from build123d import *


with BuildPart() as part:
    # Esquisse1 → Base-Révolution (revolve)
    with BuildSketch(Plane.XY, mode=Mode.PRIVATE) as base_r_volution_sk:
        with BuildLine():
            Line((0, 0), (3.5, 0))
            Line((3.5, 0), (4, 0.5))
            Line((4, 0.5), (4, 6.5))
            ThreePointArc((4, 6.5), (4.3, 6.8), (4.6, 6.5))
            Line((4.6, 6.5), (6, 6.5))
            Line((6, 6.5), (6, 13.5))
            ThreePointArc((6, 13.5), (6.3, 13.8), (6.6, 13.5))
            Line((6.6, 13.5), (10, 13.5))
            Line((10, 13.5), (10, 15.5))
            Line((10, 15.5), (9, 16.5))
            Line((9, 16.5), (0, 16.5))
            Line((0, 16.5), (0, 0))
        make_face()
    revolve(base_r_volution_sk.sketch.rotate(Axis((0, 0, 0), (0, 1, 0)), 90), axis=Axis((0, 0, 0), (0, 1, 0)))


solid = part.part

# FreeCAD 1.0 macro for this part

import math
import FreeCAD as App
import Part
import Sketcher
from FreeCAD import Vector
Q = App.Units.Quantity

doc = App.newDocument("Part")
body = doc.addObject("PartDesign::Body", "Body")

# Sketch on XY plane
sketch1 = body.newObject("Sketcher::SketchObject", "Sketch")
sketch1.AttachmentSupport = (doc.getObject("XY_Plane"), [""])
sketch1.MapMode = "FlatFace"
sketch1.addGeometry([
    Part.LineSegment(Vector(0, 0, 0), Vector(3.5, 0, 0)),  # 0
    Part.LineSegment(Vector(3.5, 0, 0), Vector(4, 0.5, 0)),  # 1
    Part.LineSegment(Vector(4, 0.5, 0), Vector(4, 6.5, 0)),  # 2
    Part.ArcOfCircle(Part.Circle(Vector(4.3, 6.5, 0), Vector(0, 0, 1), 0.3), math.radians(0), math.radians(180)),  # 3
    Part.LineSegment(Vector(4.6, 6.5, 0), Vector(6, 6.5, 0)),  # 4
    Part.LineSegment(Vector(6, 6.5, 0), Vector(6, 13.5, 0)),  # 5
    Part.ArcOfCircle(Part.Circle(Vector(6.3, 13.5, 0), Vector(0, 0, 1), 0.3), math.radians(0), math.radians(180)),  # 6
    Part.LineSegment(Vector(6.6, 13.5, 0), Vector(10, 13.5, 0)),  # 7
    Part.LineSegment(Vector(10, 13.5, 0), Vector(10, 15.5, 0)),  # 8
    Part.LineSegment(Vector(10, 15.5, 0), Vector(9, 16.5, 0)),  # 9
    Part.LineSegment(Vector(9, 16.5, 0), Vector(0, 16.5, 0)),  # 10
    Part.LineSegment(Vector(0, 16.5, 0), Vector(0, 0, 0)),  # 11
], False)
sketch1.addConstraint([
    Sketcher.Constraint("Coincident", 0, 2, 1, 1),
    Sketcher.Constraint("Coincident", 1, 2, 2, 1),
    Sketcher.Constraint("Tangent", 2, 2, 3, 2),
    Sketcher.Constraint("Coincident", 3, 1, 4, 1),
    Sketcher.Constraint("Coincident", 4, 2, 5, 1),
    Sketcher.Constraint("Tangent", 5, 2, 6, 2),
    Sketcher.Constraint("Coincident", 6, 1, 7, 1),
    Sketcher.Constraint("Coincident", 7, 2, 8, 1),
    Sketcher.Constraint("Coincident", 8, 2, 9, 1),
    Sketcher.Constraint("Coincident", 9, 2, 10, 1),
    Sketcher.Constraint("Coincident", 10, 2, 11, 1),
    Sketcher.Constraint("Coincident", 11, 2, 0, 1),
    Sketcher.Constraint("Horizontal", 0),
    Sketcher.Constraint("Vertical", 2),
    Sketcher.Constraint("Horizontal", 4),
    Sketcher.Constraint("Vertical", 5),
    Sketcher.Constraint("Horizontal", 7),
    Sketcher.Constraint("Vertical", 8),
    Sketcher.Constraint("Horizontal", 10),
    Sketcher.Constraint("Vertical", 11),
    Sketcher.Constraint("Coincident", 11, 2, -1, 1),
    Sketcher.Constraint("Equal", 3, 6),
    Sketcher.Constraint("Perpendicular", 1, 9),
    Sketcher.Constraint("Horizontal", 2, 2, 3, 1),
    Sketcher.Constraint("Horizontal", 5, 2, 6, 1),
    Sketcher.Constraint("Radius", 3, Q("0.3 mm")),
    Sketcher.Constraint("DistanceX", 10, 2, 10, 1, Q("9 mm")),
    Sketcher.Constraint("DistanceY", 2, 1, 2, 2, Q("6 mm")),
    Sketcher.Constraint("DistanceY", 5, 1, 5, 2, Q("7 mm")),
    Sketcher.Constraint("DistanceY", 8, 1, 8, 2, Q("2 mm")),
    Sketcher.Constraint("Angle", 1, Q("45 deg")),
    Sketcher.Constraint("DistanceX", 0, 1, 0, 2, Q("3.5 mm")),
    Sketcher.Constraint("DistanceX", 4, 1, 4, 2, Q("1.4 mm")),
    Sketcher.Constraint("DistanceX", 7, 1, 7, 2, Q("3.4 mm")),
    Sketcher.Constraint("DistanceY", 11, 2, 11, 1, Q("16.5 mm")),
])
revolution = body.newObject("PartDesign::Revolution", "Revolution")
revolution.Profile = sketch1
revolution.ReferenceAxis = (sketch1, ["V_Axis"])
revolution.Angle = 360

doc.recompute()
